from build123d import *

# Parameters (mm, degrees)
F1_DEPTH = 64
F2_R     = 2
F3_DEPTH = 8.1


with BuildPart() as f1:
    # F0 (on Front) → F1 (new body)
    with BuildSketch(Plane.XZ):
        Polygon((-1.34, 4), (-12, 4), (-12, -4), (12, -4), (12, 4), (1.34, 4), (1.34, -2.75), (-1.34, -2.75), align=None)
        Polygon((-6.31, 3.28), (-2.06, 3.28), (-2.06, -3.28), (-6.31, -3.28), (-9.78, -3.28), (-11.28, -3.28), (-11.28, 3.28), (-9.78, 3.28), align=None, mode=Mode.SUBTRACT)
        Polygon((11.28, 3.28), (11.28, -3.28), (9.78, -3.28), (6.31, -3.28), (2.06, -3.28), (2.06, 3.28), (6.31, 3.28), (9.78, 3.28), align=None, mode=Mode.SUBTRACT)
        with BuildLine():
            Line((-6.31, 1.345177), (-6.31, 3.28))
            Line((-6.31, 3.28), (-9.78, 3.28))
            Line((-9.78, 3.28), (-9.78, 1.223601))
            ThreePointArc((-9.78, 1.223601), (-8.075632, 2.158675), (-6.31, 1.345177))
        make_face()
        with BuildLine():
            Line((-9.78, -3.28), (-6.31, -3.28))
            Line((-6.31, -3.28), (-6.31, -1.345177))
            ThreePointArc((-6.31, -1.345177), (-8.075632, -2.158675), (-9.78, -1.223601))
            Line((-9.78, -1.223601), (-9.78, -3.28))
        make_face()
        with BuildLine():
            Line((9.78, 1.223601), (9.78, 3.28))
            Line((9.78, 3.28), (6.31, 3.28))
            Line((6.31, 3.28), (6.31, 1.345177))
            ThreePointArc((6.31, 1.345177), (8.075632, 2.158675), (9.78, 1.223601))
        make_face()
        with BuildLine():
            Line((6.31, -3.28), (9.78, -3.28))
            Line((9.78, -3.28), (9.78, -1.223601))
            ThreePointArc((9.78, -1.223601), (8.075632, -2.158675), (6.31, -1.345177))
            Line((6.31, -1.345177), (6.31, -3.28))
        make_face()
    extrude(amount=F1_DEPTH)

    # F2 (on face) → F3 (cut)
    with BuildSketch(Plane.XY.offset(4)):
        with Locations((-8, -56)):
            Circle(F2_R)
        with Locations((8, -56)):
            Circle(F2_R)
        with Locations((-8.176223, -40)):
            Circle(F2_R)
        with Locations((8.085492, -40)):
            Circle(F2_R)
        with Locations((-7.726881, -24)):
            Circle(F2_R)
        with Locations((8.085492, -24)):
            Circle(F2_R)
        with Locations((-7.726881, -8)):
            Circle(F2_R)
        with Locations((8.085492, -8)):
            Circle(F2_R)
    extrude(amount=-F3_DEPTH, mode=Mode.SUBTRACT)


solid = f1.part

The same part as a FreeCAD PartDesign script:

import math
import FreeCAD as App
import Part
import Sketcher

V = App.Vector
Q = App.Units.Quantity


def add_polygon(sketch, points):
    """Adds a closed chain of lines whose ends are joined by coincident constraints."""
    first, n = sketch.GeometryCount, len(points)
    for a, b in zip(points, points[1:] + points[:1]):
        sketch.addGeometry(Part.LineSegment(App.Vector(*a, 0), App.Vector(*b, 0)), False)
    for i in range(n):
        sketch.addConstraint(Sketcher.Constraint("Coincident", first + i, 2, first + (i + 1) % n, 1))

doc = App.newDocument("Part")
body = doc.addObject("PartDesign::Body", "Body")

# Sketch on XZ plane
sketch1 = body.newObject("Sketcher::SketchObject", "Sketch")
sketch1.AttachmentSupport = (doc.getObject("XZ_Plane"), [""])
sketch1.MapMode = "FlatFace"
add_polygon(sketch1, [(-1.3, 4), (-12, 4), (-12, -4), (12, -4), (12, 4), (1.3, 4), (1.3, -2.8), (-1.3, -2.8)])  # lines 0-7
sketch1.addGeometry(Part.LineSegment(V(-11.3, 3.3, 0), V(-9.8, 3.3, 0)), False)  # 8
sketch1.addGeometry(Part.LineSegment(V(-9.8, 3.3, 0), V(-9.8, 1.2, 0)), False)  # 9
sketch1.addGeometry(Part.ArcOfCircle(Part.Circle(V(-8, 0, 0), V(0, 0, 1), 2.2), math.radians(39), math.radians(145)), False)  # 10
sketch1.addGeometry(Part.LineSegment(V(-6.3, 1.3, 0), V(-6.3, 3.3, 0)), False)  # 11
sketch1.addGeometry(Part.LineSegment(V(-6.3, 3.3, 0), V(-2.1, 3.3, 0)), False)  # 12
sketch1.addGeometry(Part.LineSegment(V(-2.1, 3.3, 0), V(-2.1, -3.3, 0)), False)  # 13
sketch1.addGeometry(Part.LineSegment(V(-2.1, -3.3, 0), V(-6.3, -3.3, 0)), False)  # 14
sketch1.addGeometry(Part.LineSegment(V(-6.3, -3.3, 0), V(-6.3, -1.3, 0)), False)  # 15
sketch1.addGeometry(Part.ArcOfCircle(Part.Circle(V(-8, 0, 0), V(0, 0, 1), 2.2), math.radians(-145), math.radians(-39)), False)  # 16
sketch1.addGeometry(Part.LineSegment(V(-9.8, -1.2, 0), V(-9.8, -3.3, 0)), False)  # 17
sketch1.addGeometry(Part.LineSegment(V(-9.8, -3.3, 0), V(-11.3, -3.3, 0)), False)  # 18
sketch1.addGeometry(Part.LineSegment(V(-11.3, -3.3, 0), V(-11.3, 3.3, 0)), False)  # 19
sketch1.addGeometry(Part.LineSegment(V(2.1, 3.3, 0), V(6.3, 3.3, 0)), False)  # 20
sketch1.addGeometry(Part.LineSegment(V(6.3, 3.3, 0), V(6.3, 1.3, 0)), False)  # 21
sketch1.addGeometry(Part.ArcOfCircle(Part.Circle(V(8, 0, 0), V(0, 0, 1), 2.2), math.radians(35), math.radians(141)), False)  # 22
sketch1.addGeometry(Part.LineSegment(V(9.8, 1.2, 0), V(9.8, 3.3, 0)), False)  # 23
sketch1.addGeometry(Part.LineSegment(V(9.8, 3.3, 0), V(11.3, 3.3, 0)), False)  # 24
sketch1.addGeometry(Part.LineSegment(V(11.3, 3.3, 0), V(11.3, -3.3, 0)), False)  # 25
sketch1.addGeometry(Part.LineSegment(V(11.3, -3.3, 0), V(9.8, -3.3, 0)), False)  # 26
sketch1.addGeometry(Part.LineSegment(V(9.8, -3.3, 0), V(9.8, -1.2, 0)), False)  # 27
sketch1.addGeometry(Part.ArcOfCircle(Part.Circle(V(8, 0, 0), V(0, 0, 1), 2.2), math.radians(-141), math.radians(-35)), False)  # 28
sketch1.addGeometry(Part.LineSegment(V(6.3, -1.3, 0), V(6.3, -3.3, 0)), False)  # 29
sketch1.addGeometry(Part.LineSegment(V(6.3, -3.3, 0), V(2.1, -3.3, 0)), False)  # 30
sketch1.addGeometry(Part.LineSegment(V(2.1, -3.3, 0), V(2.1, 3.3, 0)), False)  # 31
sketch1.addConstraint(Sketcher.Constraint("Coincident", 8, 2, 9, 1))
sketch1.addConstraint(Sketcher.Constraint("Coincident", 9, 2, 10, 2))
sketch1.addConstraint(Sketcher.Constraint("Coincident", 10, 1, 11, 1))
sketch1.addConstraint(Sketcher.Constraint("Coincident", 11, 2, 12, 1))
sketch1.addConstraint(Sketcher.Constraint("Coincident", 12, 2, 13, 1))
sketch1.addConstraint(Sketcher.Constraint("Coincident", 13, 2, 14, 1))
sketch1.addConstraint(Sketcher.Constraint("Coincident", 14, 2, 15, 1))
sketch1.addConstraint(Sketcher.Constraint("Coincident", 15, 2, 16, 2))
sketch1.addConstraint(Sketcher.Constraint("Coincident", 16, 1, 17, 1))
sketch1.addConstraint(Sketcher.Constraint("Coincident", 17, 2, 18, 1))
sketch1.addConstraint(Sketcher.Constraint("Coincident", 18, 2, 19, 1))
sketch1.addConstraint(Sketcher.Constraint("Coincident", 19, 2, 8, 1))
sketch1.addConstraint(Sketcher.Constraint("Coincident", 20, 2, 21, 1))
sketch1.addConstraint(Sketcher.Constraint("Coincident", 21, 2, 22, 2))
sketch1.addConstraint(Sketcher.Constraint("Coincident", 22, 1, 23, 1))
sketch1.addConstraint(Sketcher.Constraint("Coincident", 23, 2, 24, 1))
sketch1.addConstraint(Sketcher.Constraint("Coincident", 24, 2, 25, 1))
sketch1.addConstraint(Sketcher.Constraint("Coincident", 25, 2, 26, 1))
sketch1.addConstraint(Sketcher.Constraint("Coincident", 26, 2, 27, 1))
sketch1.addConstraint(Sketcher.Constraint("Coincident", 27, 2, 28, 2))
sketch1.addConstraint(Sketcher.Constraint("Coincident", 28, 1, 29, 1))
sketch1.addConstraint(Sketcher.Constraint("Coincident", 29, 2, 30, 1))
sketch1.addConstraint(Sketcher.Constraint("Coincident", 30, 2, 31, 1))
sketch1.addConstraint(Sketcher.Constraint("Coincident", 31, 2, 20, 1))
sketch1.addConstraint(Sketcher.Constraint("Horizontal", 0))
sketch1.addConstraint(Sketcher.Constraint("Vertical", 1))
sketch1.addConstraint(Sketcher.Constraint("Horizontal", 2))
sketch1.addConstraint(Sketcher.Constraint("Vertical", 3))
sketch1.addConstraint(Sketcher.Constraint("Horizontal", 4))
sketch1.addConstraint(Sketcher.Constraint("Vertical", 5))
sketch1.addConstraint(Sketcher.Constraint("Horizontal", 6))
sketch1.addConstraint(Sketcher.Constraint("Vertical", 7))
sketch1.addConstraint(Sketcher.Constraint("Horizontal", 8))
sketch1.addConstraint(Sketcher.Constraint("Vertical", 9))
sketch1.addConstraint(Sketcher.Constraint("Vertical", 11))
sketch1.addConstraint(Sketcher.Constraint("Horizontal", 12))
sketch1.addConstraint(Sketcher.Constraint("Vertical", 13))
sketch1.addConstraint(Sketcher.Constraint("Horizontal", 14))
sketch1.addConstraint(Sketcher.Constraint("Vertical", 15))
sketch1.addConstraint(Sketcher.Constraint("Vertical", 17))
sketch1.addConstraint(Sketcher.Constraint("Horizontal", 18))
sketch1.addConstraint(Sketcher.Constraint("Vertical", 19))
sketch1.addConstraint(Sketcher.Constraint("Horizontal", 20))
sketch1.addConstraint(Sketcher.Constraint("Vertical", 21))
sketch1.addConstraint(Sketcher.Constraint("Vertical", 23))
sketch1.addConstraint(Sketcher.Constraint("Horizontal", 24))
sketch1.addConstraint(Sketcher.Constraint("Vertical", 25))
sketch1.addConstraint(Sketcher.Constraint("Horizontal", 26))
sketch1.addConstraint(Sketcher.Constraint("Vertical", 27))
sketch1.addConstraint(Sketcher.Constraint("Vertical", 29))
sketch1.addConstraint(Sketcher.Constraint("Horizontal", 30))
sketch1.addConstraint(Sketcher.Constraint("Vertical", 31))
sketch1.addConstraint(Sketcher.Constraint("Coincident", 16, 3, 10, 3))
sketch1.addConstraint(Sketcher.Constraint("Coincident", 28, 3, 22, 3))
sketch1.addConstraint(Sketcher.Constraint("Equal", 10, 16))
sketch1.addConstraint(Sketcher.Constraint("Equal", 16, 22))
sketch1.addConstraint(Sketcher.Constraint("Equal", 22, 28))
sketch1.addConstraint(Sketcher.Constraint("Symmetric", 10, 3, 22, 3, -1, 1))
sketch1.addConstraint(Sketcher.Constraint("Symmetric", 0, 2, 2, 2, -1, 1))
sketch1.addConstraint(Sketcher.Constraint("Symmetric", 14, 2, 20, 2, -1, 1))
sketch1.addConstraint(Sketcher.Constraint("Symmetric", 17, 2, 23, 2, -1, 1))
sketch1.addConstraint(Sketcher.Constraint("Symmetric", 19, 2, 25, 2, -1, 1))
sketch1.addConstraint(Sketcher.Constraint("Symmetric", 11, 2, 29, 2, -1, 1))
sketch1.addConstraint(Sketcher.Constraint("Symmetric", 4, 2, 7, 2, -2))
sketch1.addConstraint(Sketcher.Constraint("Symmetric", 11, 2, 20, 2, -2))
sketch1.addConstraint(Sketcher.Constraint("Symmetric", 9, 2, 22, 1, -2))
sketch1.addConstraint(Sketcher.Constraint("Symmetric", 17, 2, 26, 2, -2))
sketch1.addConstraint(Sketcher.Constraint("Horizontal", 8, 2, 11, 2))
sketch1.addConstraint(Sketcher.Constraint("Equal", 14, 20))
sketch1.addConstraint(Sketcher.Constraint("DistanceX", 2, 1, 2, 2, Q("24 mm")))
sketch1.addConstraint(Sketcher.Constraint("DistanceY", 1, 2, 1, 1, Q("8 mm")))
sketch1.addConstraint(Sketcher.Constraint("Radius", 10, Q("2.160001 mm")))
sketch1.addConstraint(Sketcher.Constraint("DistanceX", 8, 1, 8, 2, Q("1.5 mm")))
sketch1.addConstraint(Sketcher.Constraint("DistanceX", 10, 3, -1, 1, Q("8 mm")))
sketch1.addConstraint(Sketcher.Constraint("DistanceX", 0, 2, 0, 1, Q("10.66 mm")))
sketch1.addConstraint(Sketcher.Constraint("DistanceX", 12, 1, 12, 2, Q("4.25 mm")))
sketch1.addConstraint(Sketcher.Constraint("DistanceY", 5, 2, 5, 1, Q("6.75 mm")))
sketch1.addConstraint(Sketcher.Constraint("DistanceY", 13, 2, 13, 1, Q("6.56 mm")))
sketch1.addConstraint(Sketcher.Constraint("DistanceX", 12, 2, 4, 2, Q("3.4 mm")))
sketch1.addConstraint(Sketcher.Constraint("DistanceX", 8, 2, -1, 1, Q("9.78 mm")))
pad1 = body.newObject("PartDesign::Pad", "Pad")
pad1.Profile = sketch1
pad1.Length = 64

# Sketch on XY plane
sketch2 = body.newObject("Sketcher::SketchObject", "Sketch001")
sketch2.AttachmentSupport = (doc.getObject("XY_Plane"), [""])
sketch2.MapMode = "FlatFace"
sketch2.AttachmentOffset = App.Placement(V(0, 0, 4), App.Rotation())
sketch2.addGeometry(Part.Circle(V(-8, -56, 0), V(0, 0, 1), 2), False)
sketch2.addGeometry(Part.Circle(V(8, -56, 0), V(0, 0, 1), 2), False)
sketch2.addGeometry(Part.Circle(V(-8.2, -40, 0), V(0, 0, 1), 2), False)
sketch2.addGeometry(Part.Circle(V(8.1, -40, 0), V(0, 0, 1), 2), False)
sketch2.addGeometry(Part.Circle(V(-7.7, -24, 0), V(0, 0, 1), 2), False)
sketch2.addGeometry(Part.Circle(V(8.1, -24, 0), V(0, 0, 1), 2), False)
sketch2.addGeometry(Part.Circle(V(-7.7, -8, 0), V(0, 0, 1), 2), False)
sketch2.addGeometry(Part.Circle(V(8.1, -8, 0), V(0, 0, 1), 2), False)
sketch2.addConstraint(Sketcher.Constraint("Equal", 0, 1))
sketch2.addConstraint(Sketcher.Constraint("Equal", 1, 2))
sketch2.addConstraint(Sketcher.Constraint("Equal", 2, 3))
sketch2.addConstraint(Sketcher.Constraint("Equal", 3, 4))
sketch2.addConstraint(Sketcher.Constraint("Equal", 4, 5))
sketch2.addConstraint(Sketcher.Constraint("Equal", 5, 6))
sketch2.addConstraint(Sketcher.Constraint("Equal", 6, 7))
sketch2.addConstraint(Sketcher.Constraint("Symmetric", 0, 3, 1, 3, -2))
sketch2.addConstraint(Sketcher.Constraint("Horizontal", 2, 3, 3, 3))
sketch2.addConstraint(Sketcher.Constraint("Horizontal", 4, 3, 5, 3))
sketch2.addConstraint(Sketcher.Constraint("Horizontal", 6, 3, 7, 3))
sketch2.addConstraint(Sketcher.Constraint("Vertical", 3, 3, 5, 3))
sketch2.addConstraint(Sketcher.Constraint("Vertical", 4, 3, 6, 3))
sketch2.addConstraint(Sketcher.Constraint("Vertical", 5, 3, 7, 3))
sketch2.addConstraint(Sketcher.Constraint("Diameter", 0, Q("4 mm")))
sketch2.addConstraint(Sketcher.Constraint("DistanceX", 0, 3, -1, 1, Q("8 mm")))
sketch2.addConstraint(Sketcher.Constraint("DistanceY", 0, 3, -1, 1, Q("56 mm")))
sketch2.addConstraint(Sketcher.Constraint("DistanceY", 2, 3, -1, 1, Q("40 mm")))
sketch2.addConstraint(Sketcher.Constraint("DistanceY", 4, 3, -1, 1, Q("24 mm")))
sketch2.addConstraint(Sketcher.Constraint("DistanceY", 6, 3, -1, 1, Q("8 mm")))
sketch2.addConstraint(Sketcher.Constraint("DistanceX", 4, 3, -1, 1, Q("7.726881 mm")))
sketch2.addConstraint(Sketcher.Constraint("DistanceX", 2, 3, -1, 1, Q("8.176223 mm")))
sketch2.addConstraint(Sketcher.Constraint("DistanceX", -1, 1, 3, 3, Q("8.085492 mm")))
pocket1 = body.newObject("PartDesign::Pocket", "Pocket")
pocket1.Profile = sketch2
pocket1.Length = 8.1

doc.recompute()
